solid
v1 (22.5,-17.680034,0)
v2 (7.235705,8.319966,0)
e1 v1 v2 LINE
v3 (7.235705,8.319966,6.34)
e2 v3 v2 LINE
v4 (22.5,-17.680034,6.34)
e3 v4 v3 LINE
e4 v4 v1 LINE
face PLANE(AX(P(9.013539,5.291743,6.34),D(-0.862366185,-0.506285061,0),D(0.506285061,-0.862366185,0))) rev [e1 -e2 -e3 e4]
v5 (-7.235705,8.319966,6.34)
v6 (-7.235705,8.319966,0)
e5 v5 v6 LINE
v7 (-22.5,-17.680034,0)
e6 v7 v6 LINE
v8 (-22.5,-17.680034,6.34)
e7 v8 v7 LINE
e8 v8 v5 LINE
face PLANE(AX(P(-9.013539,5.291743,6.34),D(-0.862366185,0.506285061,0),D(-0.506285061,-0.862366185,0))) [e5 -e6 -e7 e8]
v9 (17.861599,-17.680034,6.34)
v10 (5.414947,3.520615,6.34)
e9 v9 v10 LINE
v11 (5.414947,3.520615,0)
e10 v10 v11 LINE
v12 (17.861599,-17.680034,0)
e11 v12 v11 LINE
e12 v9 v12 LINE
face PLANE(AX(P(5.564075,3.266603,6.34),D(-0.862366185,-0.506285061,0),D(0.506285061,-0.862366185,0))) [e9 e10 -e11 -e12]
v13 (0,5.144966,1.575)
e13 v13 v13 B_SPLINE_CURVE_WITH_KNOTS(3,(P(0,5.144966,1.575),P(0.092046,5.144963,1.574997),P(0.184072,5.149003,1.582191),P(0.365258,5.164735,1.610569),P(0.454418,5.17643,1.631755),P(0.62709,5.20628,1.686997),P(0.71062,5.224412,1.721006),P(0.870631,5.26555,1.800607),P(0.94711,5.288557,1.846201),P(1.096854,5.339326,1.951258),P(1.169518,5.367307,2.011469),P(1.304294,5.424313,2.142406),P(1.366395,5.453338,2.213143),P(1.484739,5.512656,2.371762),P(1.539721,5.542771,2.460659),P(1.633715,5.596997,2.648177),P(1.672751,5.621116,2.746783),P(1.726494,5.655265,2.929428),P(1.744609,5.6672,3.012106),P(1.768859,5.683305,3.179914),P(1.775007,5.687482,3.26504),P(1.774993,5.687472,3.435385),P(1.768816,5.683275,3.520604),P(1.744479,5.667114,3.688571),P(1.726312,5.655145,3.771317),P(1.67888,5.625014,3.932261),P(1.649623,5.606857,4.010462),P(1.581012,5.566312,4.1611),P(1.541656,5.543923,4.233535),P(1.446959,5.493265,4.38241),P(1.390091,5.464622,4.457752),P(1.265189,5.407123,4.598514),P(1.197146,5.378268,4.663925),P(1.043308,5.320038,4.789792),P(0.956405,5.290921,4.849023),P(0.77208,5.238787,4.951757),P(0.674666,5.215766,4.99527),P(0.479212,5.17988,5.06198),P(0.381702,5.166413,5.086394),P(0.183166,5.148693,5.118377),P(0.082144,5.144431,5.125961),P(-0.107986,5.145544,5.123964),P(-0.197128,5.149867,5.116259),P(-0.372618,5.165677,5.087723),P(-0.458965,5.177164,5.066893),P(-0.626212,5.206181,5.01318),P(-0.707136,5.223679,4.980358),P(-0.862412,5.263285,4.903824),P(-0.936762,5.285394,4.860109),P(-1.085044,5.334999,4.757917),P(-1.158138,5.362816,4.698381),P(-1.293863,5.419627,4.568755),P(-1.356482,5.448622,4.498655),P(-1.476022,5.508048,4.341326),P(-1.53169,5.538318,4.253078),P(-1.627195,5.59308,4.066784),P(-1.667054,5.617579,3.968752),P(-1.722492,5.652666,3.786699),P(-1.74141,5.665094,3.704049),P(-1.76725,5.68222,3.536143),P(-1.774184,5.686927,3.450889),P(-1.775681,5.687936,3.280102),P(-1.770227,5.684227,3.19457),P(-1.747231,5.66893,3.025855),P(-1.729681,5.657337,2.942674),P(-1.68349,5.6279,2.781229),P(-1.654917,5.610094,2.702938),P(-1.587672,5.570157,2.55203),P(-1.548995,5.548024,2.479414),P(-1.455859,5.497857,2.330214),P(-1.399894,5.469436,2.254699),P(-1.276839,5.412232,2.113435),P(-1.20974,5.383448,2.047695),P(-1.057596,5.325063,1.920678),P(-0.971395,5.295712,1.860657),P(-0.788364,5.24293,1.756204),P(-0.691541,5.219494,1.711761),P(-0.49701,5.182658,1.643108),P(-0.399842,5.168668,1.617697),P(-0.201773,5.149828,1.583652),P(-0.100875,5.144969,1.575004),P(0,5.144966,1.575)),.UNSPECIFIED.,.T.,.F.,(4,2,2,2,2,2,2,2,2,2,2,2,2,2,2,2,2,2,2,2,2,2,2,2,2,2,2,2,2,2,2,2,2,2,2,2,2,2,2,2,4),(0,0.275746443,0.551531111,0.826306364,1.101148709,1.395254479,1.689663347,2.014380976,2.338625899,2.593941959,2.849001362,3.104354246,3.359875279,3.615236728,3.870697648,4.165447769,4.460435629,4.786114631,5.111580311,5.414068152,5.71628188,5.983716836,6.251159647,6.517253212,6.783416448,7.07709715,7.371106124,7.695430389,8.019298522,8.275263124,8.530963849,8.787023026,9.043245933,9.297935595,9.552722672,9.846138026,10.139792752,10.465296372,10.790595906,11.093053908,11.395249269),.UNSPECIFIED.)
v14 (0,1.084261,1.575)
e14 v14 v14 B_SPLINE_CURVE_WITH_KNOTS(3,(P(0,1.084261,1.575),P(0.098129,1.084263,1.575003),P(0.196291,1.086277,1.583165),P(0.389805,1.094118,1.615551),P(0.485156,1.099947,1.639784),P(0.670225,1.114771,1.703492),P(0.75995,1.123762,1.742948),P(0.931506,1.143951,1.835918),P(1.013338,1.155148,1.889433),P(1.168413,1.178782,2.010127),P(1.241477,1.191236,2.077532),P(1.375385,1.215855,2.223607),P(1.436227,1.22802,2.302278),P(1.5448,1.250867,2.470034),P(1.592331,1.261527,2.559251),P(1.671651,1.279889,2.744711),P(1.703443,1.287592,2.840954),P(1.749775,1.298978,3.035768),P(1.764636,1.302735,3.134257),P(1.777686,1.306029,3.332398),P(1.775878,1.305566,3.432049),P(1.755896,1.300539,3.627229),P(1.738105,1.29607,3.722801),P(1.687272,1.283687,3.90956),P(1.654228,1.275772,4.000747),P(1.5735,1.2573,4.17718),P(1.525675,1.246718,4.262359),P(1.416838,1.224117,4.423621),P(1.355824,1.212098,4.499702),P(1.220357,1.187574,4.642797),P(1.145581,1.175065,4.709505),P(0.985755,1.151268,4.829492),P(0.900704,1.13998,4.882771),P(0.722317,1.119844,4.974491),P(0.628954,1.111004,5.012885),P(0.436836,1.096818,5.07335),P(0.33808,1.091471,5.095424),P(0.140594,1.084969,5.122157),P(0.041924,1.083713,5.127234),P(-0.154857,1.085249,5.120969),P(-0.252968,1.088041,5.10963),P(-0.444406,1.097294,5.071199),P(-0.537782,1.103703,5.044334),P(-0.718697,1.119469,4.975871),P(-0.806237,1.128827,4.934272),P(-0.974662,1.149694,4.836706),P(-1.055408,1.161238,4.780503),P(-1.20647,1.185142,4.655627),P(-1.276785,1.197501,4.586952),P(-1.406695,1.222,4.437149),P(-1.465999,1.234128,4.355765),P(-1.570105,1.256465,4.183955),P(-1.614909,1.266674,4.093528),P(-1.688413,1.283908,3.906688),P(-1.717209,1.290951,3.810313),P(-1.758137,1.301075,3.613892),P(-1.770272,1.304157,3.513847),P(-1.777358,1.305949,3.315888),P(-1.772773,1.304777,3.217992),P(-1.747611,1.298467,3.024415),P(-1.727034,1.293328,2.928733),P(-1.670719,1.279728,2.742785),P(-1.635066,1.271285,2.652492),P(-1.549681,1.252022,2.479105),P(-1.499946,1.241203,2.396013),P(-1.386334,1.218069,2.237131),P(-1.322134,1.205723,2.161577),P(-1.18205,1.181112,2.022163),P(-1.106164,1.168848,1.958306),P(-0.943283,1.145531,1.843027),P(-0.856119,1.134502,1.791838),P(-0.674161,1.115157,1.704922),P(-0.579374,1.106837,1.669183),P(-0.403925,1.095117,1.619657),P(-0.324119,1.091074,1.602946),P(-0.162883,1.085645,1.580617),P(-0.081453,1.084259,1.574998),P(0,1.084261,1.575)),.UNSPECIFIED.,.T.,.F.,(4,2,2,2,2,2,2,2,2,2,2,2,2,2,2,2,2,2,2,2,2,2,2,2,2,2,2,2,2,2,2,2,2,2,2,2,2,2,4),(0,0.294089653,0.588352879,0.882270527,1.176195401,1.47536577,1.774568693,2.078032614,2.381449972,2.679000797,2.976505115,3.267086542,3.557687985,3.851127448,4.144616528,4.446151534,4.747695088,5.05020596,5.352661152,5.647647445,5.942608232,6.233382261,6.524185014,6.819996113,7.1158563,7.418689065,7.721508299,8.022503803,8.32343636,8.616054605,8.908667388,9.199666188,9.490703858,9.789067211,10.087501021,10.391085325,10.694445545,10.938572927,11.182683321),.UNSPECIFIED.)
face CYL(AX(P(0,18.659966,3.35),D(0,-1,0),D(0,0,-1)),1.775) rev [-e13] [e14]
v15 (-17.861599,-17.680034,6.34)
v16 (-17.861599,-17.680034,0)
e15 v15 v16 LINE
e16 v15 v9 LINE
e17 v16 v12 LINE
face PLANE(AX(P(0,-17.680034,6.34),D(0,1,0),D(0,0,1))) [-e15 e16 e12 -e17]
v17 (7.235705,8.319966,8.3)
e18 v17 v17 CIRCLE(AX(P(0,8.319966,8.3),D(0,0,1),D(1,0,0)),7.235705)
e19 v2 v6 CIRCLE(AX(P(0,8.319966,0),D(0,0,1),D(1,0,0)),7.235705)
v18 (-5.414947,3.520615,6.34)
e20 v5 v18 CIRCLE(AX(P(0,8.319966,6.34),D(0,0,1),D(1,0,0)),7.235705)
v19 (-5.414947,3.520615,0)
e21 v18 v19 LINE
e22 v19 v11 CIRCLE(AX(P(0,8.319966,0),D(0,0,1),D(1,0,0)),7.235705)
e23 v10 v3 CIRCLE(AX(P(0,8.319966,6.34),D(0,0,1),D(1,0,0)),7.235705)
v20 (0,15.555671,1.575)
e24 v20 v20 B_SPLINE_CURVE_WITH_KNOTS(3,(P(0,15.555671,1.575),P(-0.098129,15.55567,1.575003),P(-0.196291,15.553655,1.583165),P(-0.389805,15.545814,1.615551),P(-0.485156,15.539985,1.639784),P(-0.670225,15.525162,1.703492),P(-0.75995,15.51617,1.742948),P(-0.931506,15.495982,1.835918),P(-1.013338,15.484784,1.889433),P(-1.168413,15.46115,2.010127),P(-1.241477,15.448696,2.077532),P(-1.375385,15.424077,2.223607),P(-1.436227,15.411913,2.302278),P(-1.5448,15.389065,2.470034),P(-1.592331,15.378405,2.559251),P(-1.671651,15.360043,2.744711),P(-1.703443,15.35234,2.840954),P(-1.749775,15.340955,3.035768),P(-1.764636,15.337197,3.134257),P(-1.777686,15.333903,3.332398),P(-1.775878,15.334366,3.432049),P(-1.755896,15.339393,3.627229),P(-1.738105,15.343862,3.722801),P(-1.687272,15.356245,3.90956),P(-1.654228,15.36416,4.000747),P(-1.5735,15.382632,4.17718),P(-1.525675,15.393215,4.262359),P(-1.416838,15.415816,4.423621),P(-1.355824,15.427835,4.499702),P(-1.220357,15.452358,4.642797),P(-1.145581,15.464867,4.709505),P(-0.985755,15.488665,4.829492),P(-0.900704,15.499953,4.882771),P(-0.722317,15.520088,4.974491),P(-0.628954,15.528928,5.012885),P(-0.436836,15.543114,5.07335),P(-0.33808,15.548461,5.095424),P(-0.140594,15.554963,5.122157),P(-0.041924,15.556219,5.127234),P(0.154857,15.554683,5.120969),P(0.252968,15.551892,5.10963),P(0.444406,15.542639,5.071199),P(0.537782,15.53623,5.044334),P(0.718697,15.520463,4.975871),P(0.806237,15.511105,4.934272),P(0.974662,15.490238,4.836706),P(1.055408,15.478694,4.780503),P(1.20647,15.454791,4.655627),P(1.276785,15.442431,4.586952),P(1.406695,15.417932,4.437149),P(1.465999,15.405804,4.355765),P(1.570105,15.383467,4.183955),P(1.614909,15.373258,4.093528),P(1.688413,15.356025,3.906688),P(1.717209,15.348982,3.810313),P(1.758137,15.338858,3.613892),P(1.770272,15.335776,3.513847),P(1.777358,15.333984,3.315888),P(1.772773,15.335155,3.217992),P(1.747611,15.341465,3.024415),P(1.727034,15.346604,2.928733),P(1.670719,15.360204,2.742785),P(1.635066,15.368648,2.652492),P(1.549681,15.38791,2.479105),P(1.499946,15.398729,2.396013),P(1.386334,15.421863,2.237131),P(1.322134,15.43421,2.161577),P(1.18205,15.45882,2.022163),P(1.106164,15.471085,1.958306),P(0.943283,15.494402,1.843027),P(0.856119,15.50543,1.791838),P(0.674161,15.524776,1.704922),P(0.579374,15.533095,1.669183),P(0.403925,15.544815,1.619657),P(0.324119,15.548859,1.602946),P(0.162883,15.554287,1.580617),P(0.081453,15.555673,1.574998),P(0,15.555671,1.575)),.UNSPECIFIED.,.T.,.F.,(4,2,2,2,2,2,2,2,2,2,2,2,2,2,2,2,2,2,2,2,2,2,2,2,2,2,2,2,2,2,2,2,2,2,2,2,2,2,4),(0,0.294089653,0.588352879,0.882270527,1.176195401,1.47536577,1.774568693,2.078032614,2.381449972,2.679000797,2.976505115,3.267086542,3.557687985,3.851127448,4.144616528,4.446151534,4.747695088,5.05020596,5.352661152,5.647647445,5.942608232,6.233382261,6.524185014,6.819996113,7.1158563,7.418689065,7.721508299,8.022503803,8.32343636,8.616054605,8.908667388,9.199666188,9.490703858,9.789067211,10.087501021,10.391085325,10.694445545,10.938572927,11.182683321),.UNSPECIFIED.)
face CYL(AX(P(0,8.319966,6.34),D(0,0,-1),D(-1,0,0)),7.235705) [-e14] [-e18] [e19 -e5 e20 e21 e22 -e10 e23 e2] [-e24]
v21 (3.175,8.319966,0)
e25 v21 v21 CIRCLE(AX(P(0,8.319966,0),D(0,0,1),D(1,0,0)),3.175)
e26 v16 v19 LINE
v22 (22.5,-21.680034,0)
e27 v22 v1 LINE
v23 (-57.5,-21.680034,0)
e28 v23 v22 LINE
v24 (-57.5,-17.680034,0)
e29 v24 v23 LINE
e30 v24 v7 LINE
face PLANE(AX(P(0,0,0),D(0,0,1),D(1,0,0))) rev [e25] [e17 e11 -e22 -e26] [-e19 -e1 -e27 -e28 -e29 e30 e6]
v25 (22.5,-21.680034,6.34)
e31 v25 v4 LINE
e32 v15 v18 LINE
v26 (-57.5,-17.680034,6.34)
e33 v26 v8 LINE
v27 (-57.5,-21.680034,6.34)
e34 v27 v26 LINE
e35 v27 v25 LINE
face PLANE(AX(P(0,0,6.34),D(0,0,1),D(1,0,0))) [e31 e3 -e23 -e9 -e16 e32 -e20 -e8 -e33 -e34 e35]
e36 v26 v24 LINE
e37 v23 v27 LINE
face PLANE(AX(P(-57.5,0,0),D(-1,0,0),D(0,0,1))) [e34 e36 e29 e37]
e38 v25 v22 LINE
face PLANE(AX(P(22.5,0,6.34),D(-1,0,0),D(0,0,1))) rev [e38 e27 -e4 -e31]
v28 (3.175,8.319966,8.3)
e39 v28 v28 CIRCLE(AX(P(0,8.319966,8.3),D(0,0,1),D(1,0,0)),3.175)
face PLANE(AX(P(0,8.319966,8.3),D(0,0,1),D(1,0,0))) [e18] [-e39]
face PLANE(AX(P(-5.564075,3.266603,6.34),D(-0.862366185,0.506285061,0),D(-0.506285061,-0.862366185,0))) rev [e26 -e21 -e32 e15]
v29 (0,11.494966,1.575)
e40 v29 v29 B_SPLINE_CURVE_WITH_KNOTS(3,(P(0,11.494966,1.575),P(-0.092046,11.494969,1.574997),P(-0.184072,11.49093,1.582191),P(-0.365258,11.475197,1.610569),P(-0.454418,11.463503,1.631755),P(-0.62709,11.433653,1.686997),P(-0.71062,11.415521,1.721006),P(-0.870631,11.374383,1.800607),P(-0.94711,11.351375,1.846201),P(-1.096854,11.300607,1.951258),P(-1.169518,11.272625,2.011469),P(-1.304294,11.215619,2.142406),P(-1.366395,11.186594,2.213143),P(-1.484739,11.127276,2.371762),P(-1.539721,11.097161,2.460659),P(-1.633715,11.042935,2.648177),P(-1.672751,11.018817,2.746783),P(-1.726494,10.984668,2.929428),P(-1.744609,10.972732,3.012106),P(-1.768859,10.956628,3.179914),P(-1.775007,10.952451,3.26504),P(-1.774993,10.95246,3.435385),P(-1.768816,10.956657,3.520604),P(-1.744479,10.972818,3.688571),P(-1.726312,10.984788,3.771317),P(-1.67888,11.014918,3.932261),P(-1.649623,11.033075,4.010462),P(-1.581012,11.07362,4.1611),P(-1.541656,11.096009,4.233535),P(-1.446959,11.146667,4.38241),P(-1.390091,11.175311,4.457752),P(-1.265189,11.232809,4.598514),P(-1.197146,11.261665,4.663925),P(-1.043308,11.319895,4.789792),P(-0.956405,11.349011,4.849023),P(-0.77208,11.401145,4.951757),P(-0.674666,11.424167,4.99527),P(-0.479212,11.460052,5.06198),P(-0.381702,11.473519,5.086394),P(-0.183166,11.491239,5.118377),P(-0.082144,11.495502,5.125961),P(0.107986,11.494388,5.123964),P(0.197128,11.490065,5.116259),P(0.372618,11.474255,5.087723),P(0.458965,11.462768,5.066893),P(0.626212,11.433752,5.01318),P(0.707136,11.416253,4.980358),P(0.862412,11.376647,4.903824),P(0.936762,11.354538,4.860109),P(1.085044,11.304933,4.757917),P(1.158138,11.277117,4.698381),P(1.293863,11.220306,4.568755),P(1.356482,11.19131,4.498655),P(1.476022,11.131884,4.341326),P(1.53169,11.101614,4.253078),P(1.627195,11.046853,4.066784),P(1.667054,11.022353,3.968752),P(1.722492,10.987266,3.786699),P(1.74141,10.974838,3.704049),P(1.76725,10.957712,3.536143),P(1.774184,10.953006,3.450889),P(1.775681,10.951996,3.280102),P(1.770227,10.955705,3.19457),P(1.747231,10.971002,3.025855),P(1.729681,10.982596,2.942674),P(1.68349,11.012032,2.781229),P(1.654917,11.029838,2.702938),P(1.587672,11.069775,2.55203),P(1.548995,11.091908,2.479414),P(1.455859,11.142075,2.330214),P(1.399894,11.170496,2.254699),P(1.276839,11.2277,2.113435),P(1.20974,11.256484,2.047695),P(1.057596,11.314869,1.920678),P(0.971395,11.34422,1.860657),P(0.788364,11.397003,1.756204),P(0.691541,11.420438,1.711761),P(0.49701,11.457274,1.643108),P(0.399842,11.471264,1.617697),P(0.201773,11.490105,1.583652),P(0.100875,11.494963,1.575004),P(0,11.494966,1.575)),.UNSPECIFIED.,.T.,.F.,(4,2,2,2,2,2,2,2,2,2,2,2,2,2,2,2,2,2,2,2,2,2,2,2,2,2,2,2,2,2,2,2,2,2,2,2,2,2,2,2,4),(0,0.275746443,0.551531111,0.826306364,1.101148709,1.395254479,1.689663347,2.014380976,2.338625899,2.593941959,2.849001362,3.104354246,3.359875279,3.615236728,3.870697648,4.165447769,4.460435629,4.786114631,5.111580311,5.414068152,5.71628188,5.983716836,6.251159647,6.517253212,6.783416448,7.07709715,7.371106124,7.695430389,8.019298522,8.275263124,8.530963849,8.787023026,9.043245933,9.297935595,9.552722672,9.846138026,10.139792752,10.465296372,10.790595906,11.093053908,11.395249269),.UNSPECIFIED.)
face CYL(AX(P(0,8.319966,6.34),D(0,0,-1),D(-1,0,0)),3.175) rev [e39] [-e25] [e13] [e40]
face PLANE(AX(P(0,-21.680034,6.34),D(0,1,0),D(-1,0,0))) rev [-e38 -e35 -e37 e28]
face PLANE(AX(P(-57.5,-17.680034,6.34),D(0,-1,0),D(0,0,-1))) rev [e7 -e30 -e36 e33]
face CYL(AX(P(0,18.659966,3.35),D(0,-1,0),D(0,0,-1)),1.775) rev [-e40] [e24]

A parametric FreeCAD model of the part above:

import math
import FreeCAD as App
import Part
import Sketcher
from FreeCAD import Vector


def add_polygon(sketch, points):
    """Adds a closed chain of lines whose ends are joined by coincident constraints."""
    first, n = sketch.GeometryCount, len(points)
    for a, b in zip(points, points[1:] + points[:1]):
        sketch.addGeometry(Part.LineSegment(App.Vector(*a, 0), App.Vector(*b, 0)), False)
    for i in range(n):
        sketch.addConstraint(Sketcher.Constraint("Coincident", first + i, 2, first + (i + 1) % n, 1))

doc = App.newDocument("Part")
body = doc.addObject("PartDesign::Body", "Body")

sketch1 = body.newObject("Sketcher::SketchObject", "Sketch")
sketch1.AttachmentSupport = (doc.getObject("XY_Plane"), [""])
sketch1.MapMode = "FlatFace"
sketch1.addGeometry(Part.LineSegment(Vector(-7.2, 8.3, 0), Vector(-22.5, -17.7, 0)), False)
sketch1.addGeometry(Part.LineSegment(Vector(-22.5, -17.7, 0), Vector(-22.5, -21.7, 0)), False)
sketch1.addGeometry(Part.LineSegment(Vector(-22.5, -21.7, 0), Vector(22.5, -21.7, 0)), False)
sketch1.addGeometry(Part.LineSegment(Vector(22.5, -21.7, 0), Vector(22.5, -17.7, 0)), False)
sketch1.addGeometry(Part.LineSegment(Vector(22.5, -17.7, 0), Vector(7.2, 8.3, 0)), False)
sketch1.addGeometry(Part.ArcOfCircle(Part.Circle(Vector(0, 8.3, 0), Vector(0, 0, 1), 7.2), math.radians(0), math.radians(180)), False)
sketch1.addGeometry(Part.LineSegment(Vector(17.9, -17.7, 0), Vector(-17.9, -17.7, 0)), False)
sketch1.addGeometry(Part.LineSegment(Vector(-17.9, -17.7, 0), Vector(-5.4, 3.5, 0)), False)
sketch1.addGeometry(Part.ArcOfCircle(Part.Circle(Vector(0, 8.3, 0), Vector(0, 0, 1), 7.2), math.radians(-138), math.radians(-42)), False)
sketch1.addGeometry(Part.LineSegment(Vector(5.4, 3.5, 0), Vector(17.9, -17.7, 0)), False)
sketch1.addGeometry(Part.Circle(Vector(0, 8.3, 0), Vector(0, 0, 1), 3.2), False)
sketch1.addConstraint(Sketcher.Constraint("Coincident", 0, 2, 1, 1))
sketch1.addConstraint(Sketcher.Constraint("Coincident", 1, 2, 2, 1))
sketch1.addConstraint(Sketcher.Constraint("Coincident", 2, 2, 3, 1))
sketch1.addConstraint(Sketcher.Constraint("Coincident", 3, 2, 4, 1))
sketch1.addConstraint(Sketcher.Constraint("Coincident", 4, 2, 5, 1))
sketch1.addConstraint(Sketcher.Constraint("Coincident", 5, 2, 0, 1))
sketch1.addConstraint(Sketcher.Constraint("Coincident", 6, 2, 7, 1))
sketch1.addConstraint(Sketcher.Constraint("Coincident", 7, 2, 8, 1))
sketch1.addConstraint(Sketcher.Constraint("Coincident", 8, 2, 9, 1))
sketch1.addConstraint(Sketcher.Constraint("Coincident", 9, 2, 6, 1))
sketch1.addConstraint(Sketcher.Constraint("Vertical", 1))
sketch1.addConstraint(Sketcher.Constraint("Horizontal", 2))
sketch1.addConstraint(Sketcher.Constraint("Vertical", 3))
sketch1.addConstraint(Sketcher.Constraint("Horizontal", 6))
sketch1.addConstraint(Sketcher.Constraint("Coincident", 8, 3, 5, 3))
sketch1.addConstraint(Sketcher.Constraint("Coincident", 10, 3, 5, 3))
sketch1.addConstraint(Sketcher.Constraint("Equal", 5, 8))
sketch1.addConstraint(Sketcher.Constraint("Symmetric", 0, 2, 3, 2, -2))
sketch1.addConstraint(Sketcher.Constraint("Symmetric", 4, 2, 5, 2, -2))
sketch1.addConstraint(Sketcher.Constraint("Parallel", 0, 7))
sketch1.addConstraint(Sketcher.Constraint("Parallel", 4, 9))
sketch1.addConstraint(Sketcher.Constraint("Horizontal", 10, 3, 4, 2))
sketch1.addConstraint(Sketcher.Constraint("Horizontal", 3, 2, 6, 2))
sketch1.addConstraint(Sketcher.Constraint("Horizontal", 7, 2, 8, 2))
sketch1.addConstraint(Sketcher.Constraint("Diameter", 10, 6.35))
sketch1.addConstraint(Sketcher.Constraint("DistanceX", 2, 1, 2, 2, 45.0))
sketch1.addConstraint(Sketcher.Constraint("DistanceY", 1, 2, 1, 1, 4.0))
sketch1.addConstraint(Sketcher.Constraint("DistanceY", 0, 2, 5, 3, 26.0))
sketch1.addConstraint(Sketcher.Constraint("DistanceX", 6, 2, 6, 1, 35.723198))
sketch1.addConstraint(Sketcher.Constraint("Radius", 5, 7.235705))
sketch1.addConstraint(Sketcher.Constraint("DistanceY", -1, 1, 5, 3, 8.319966))
pad1 = body.newObject("PartDesign::Pad", "Pad")
pad1.Profile = sketch1
pad1.Length = 6.34

sketch2 = body.newObject("Sketcher::SketchObject", "Sketch001")
sketch2.AttachmentSupport = (doc.getObject("XZ_Plane"), [""])
sketch2.MapMode = "FlatFace"
sketch2.AttachmentOffset = App.Placement(Vector(0, 0, -14.319966), App.Rotation())
sketch2.addGeometry(Part.Circle(Vector(0, 3.4, 0), Vector(0, 0, 1), 1.8), False)
sketch2.addConstraint(Sketcher.Constraint("PointOnObject", 0, 3, -2))
sketch2.addConstraint(Sketcher.Constraint("Diameter", 0, 3.55))
sketch2.addConstraint(Sketcher.Constraint("DistanceY", -1, 1, 0, 3, 3.35))
pocket1 = body.newObject("PartDesign::Pocket", "Pocket")
pocket1.Profile = sketch2
pocket1.Type = "TwoLengths"
pocket1.Length = 4.34
pocket1.Length2 = 18.34

sketch3 = body.newObject("Sketcher::SketchObject", "Sketch002")
sketch3.AttachmentSupport = (doc.getObject("XY_Plane"), [""])
sketch3.MapMode = "FlatFace"
sketch3.AttachmentOffset = App.Placement(Vector(0, 0, 6.34), App.Rotation())
sketch3.addGeometry(Part.Circle(Vector(0, 8.3, 0), Vector(0, 0, 1), 7.2), False)
sketch3.addGeometry(Part.Circle(Vector(0, 8.3, 0), Vector(0, 0, 1), 3.2), False)
sketch3.addConstraint(Sketcher.Constraint("Coincident", 1, 3, 0, 3))
sketch3.addConstraint(Sketcher.Constraint("PointOnObject", 0, 3, -2))
sketch3.addConstraint(Sketcher.Constraint("Diameter", 1, 6.35))
sketch3.addConstraint(Sketcher.Constraint("Diameter", 0, 14.471411))
sketch3.addConstraint(Sketcher.Constraint("DistanceY", -1, 1, 0, 3, 8.319966))
pad2 = body.newObject("PartDesign::Pad", "Pad001")
pad2.Profile = sketch3
pad2.Length = 1.96

sketch4 = body.newObject("Sketcher::SketchObject", "Sketch003")
sketch4.AttachmentSupport = (doc.getObject("YZ_Plane"), [""])
sketch4.MapMode = "FlatFace"
sketch4.AttachmentOffset = App.Placement(Vector(0, 0, -22.5), App.Rotation())
add_polygon(sketch4, [(-17.7, 0), (-21.7, 0), (-21.7, 6.3), (-17.7, 6.3)])
sketch4.addConstraint(Sketcher.Constraint("Horizontal", 0))
sketch4.addConstraint(Sketcher.Constraint("Vertical", 1))
sketch4.addConstraint(Sketcher.Constraint("Horizontal", 2))
sketch4.addConstraint(Sketcher.Constraint("Vertical", 3))
sketch4.addConstraint(Sketcher.Constraint("PointOnObject", 0, 2, -1))
sketch4.addConstraint(Sketcher.Constraint("DistanceX", 0, 2, 0, 1, 4.0))
sketch4.addConstraint(Sketcher.Constraint("DistanceY", 1, 1, 1, 2, 6.34))
sketch4.addConstraint(Sketcher.Constraint("DistanceX", 0, 2, -1, 1, 21.680034))
pad3 = body.newObject("PartDesign::Pad", "Pad002")
pad3.Profile = sketch4
pad3.Length = 35
pad3.Reversed = True

doc.recompute()
